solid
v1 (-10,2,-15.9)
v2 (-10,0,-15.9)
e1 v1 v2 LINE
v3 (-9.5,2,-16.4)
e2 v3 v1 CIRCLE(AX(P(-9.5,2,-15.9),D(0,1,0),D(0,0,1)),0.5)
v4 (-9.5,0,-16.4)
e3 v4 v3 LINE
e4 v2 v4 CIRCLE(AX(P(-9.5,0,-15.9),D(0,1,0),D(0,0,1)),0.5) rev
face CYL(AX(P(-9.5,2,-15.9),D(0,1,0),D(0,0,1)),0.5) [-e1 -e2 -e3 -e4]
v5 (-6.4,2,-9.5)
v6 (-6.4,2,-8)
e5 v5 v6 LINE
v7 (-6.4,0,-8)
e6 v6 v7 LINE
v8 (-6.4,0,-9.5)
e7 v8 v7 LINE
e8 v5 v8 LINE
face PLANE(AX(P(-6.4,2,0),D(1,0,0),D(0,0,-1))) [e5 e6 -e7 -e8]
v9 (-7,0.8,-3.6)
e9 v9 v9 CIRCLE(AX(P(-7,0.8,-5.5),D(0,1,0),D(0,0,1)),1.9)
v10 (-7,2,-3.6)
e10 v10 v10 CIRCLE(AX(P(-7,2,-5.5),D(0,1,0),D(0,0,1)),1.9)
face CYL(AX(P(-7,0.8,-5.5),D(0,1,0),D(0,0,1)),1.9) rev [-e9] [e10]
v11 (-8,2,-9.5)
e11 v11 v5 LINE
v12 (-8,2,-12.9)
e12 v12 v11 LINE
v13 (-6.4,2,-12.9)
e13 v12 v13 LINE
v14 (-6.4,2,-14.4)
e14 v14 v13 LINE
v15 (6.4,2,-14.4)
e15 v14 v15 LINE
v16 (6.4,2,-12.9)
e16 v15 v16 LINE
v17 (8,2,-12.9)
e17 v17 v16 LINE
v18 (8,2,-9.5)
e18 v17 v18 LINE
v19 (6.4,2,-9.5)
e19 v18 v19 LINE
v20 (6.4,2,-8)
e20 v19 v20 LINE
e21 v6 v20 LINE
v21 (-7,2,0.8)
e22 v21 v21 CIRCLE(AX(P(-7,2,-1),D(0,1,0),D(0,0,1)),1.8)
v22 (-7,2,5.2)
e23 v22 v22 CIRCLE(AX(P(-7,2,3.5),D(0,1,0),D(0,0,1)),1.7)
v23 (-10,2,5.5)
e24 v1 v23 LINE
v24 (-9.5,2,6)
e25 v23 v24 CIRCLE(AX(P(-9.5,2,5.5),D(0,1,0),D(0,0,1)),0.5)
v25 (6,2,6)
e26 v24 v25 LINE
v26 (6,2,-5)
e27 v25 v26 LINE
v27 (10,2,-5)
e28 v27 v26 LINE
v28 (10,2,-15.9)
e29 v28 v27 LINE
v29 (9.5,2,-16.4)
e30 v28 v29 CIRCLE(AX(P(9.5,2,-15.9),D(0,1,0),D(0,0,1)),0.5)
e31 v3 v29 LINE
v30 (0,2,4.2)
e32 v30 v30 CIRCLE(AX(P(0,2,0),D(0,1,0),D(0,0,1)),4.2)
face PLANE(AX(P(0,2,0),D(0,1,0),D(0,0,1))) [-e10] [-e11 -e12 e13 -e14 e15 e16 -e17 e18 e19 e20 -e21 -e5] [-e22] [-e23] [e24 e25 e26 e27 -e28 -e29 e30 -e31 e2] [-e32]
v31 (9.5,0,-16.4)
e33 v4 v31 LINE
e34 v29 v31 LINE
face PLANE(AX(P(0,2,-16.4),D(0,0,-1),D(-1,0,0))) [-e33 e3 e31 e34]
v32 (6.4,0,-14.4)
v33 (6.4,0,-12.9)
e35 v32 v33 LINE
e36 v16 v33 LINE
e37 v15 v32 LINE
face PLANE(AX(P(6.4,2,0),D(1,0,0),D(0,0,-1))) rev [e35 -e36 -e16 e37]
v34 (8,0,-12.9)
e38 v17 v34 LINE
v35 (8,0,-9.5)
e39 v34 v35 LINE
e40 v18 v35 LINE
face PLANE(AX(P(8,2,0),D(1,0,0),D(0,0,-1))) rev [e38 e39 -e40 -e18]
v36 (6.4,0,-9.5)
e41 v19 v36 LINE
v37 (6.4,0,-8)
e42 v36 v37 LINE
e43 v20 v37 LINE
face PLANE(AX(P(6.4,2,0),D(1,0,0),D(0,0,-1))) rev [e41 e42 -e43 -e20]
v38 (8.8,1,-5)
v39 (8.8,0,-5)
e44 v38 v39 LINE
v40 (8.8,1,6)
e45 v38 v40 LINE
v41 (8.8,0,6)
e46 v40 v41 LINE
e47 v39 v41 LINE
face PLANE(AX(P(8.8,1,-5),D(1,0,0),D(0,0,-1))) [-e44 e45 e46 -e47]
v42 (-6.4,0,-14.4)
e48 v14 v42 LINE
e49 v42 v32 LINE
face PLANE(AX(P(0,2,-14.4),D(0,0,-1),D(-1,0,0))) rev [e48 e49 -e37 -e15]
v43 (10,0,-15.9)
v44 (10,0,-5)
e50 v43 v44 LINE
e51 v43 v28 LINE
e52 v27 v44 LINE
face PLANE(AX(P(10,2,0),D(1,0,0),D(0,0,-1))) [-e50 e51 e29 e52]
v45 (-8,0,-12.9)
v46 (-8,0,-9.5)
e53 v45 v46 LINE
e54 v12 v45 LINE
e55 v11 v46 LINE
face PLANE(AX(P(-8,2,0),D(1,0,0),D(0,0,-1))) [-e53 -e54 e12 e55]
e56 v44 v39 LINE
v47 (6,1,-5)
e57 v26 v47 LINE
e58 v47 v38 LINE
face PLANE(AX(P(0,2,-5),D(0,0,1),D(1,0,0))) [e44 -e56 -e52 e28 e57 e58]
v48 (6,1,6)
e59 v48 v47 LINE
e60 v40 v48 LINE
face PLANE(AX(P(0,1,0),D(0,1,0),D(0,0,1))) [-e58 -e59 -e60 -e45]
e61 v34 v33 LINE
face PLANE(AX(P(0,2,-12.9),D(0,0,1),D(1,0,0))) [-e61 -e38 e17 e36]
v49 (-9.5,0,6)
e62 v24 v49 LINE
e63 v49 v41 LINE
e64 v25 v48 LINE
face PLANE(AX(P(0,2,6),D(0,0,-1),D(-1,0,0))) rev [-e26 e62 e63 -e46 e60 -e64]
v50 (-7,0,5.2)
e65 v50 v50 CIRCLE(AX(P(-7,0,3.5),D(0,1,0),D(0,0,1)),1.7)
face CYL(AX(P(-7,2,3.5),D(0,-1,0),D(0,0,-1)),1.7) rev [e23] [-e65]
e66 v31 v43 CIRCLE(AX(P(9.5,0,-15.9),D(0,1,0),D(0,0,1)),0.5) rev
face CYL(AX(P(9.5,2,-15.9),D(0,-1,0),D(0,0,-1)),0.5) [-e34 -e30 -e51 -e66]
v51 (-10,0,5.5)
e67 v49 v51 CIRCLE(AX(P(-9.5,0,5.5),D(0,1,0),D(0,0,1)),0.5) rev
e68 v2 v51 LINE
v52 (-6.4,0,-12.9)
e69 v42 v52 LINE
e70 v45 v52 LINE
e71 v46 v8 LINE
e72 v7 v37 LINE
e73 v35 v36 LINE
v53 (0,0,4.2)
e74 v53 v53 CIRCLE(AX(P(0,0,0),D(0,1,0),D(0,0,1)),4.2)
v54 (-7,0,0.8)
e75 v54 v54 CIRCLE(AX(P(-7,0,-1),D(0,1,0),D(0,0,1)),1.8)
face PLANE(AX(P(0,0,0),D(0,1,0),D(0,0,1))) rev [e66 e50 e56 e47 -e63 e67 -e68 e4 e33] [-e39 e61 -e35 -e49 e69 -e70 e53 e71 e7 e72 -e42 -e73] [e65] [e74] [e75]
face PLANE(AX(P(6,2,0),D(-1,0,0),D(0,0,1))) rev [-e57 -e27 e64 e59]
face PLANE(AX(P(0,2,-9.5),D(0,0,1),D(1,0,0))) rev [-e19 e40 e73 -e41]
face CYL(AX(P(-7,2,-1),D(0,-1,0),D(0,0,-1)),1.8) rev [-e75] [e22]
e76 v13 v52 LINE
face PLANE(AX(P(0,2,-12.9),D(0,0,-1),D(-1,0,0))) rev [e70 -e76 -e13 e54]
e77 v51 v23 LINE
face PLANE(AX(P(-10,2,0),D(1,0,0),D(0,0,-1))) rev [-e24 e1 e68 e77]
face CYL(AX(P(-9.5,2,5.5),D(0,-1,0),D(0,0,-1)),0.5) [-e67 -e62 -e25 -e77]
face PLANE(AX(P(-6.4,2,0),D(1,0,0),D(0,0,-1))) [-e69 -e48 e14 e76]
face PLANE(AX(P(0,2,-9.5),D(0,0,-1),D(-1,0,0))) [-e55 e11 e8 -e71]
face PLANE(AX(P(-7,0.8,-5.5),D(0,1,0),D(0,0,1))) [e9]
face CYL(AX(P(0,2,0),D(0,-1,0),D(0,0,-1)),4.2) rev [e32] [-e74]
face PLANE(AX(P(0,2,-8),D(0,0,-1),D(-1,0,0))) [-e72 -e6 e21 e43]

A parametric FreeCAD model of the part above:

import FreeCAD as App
import Part
import Sketcher

V = App.Vector


def edges_at(feature, points):
    """Names of the edges that pass closest to the given points."""
    edges = feature.Shape.Edges
    near = lambda p: min(range(len(edges)), key=lambda i: edges[i].distToShape(Part.Vertex(*p))[0])
    return sorted({f"Edge{near(p) + 1}" for p in points})


def add_polygon(sketch, points):
    """Adds a closed chain of lines whose ends are joined by coincident constraints."""
    first, n = sketch.GeometryCount, len(points)
    for a, b in zip(points, points[1:] + points[:1]):
        sketch.addGeometry(Part.LineSegment(App.Vector(*a, 0), App.Vector(*b, 0)), False)
    for i in range(n):
        sketch.addConstraint(Sketcher.Constraint("Coincident", first + i, 2, first + (i + 1) % n, 1))

doc = App.newDocument("Part")
body = doc.addObject("PartDesign::Body", "Body")

# Sketch on XZ plane
sketch1 = body.newObject("Sketcher::SketchObject", "Sketch")
sketch1.AttachmentSupport = (doc.getObject("XZ_Plane"), [""])
sketch1.MapMode = "FlatFace"
add_polygon(sketch1, [(10, -16.4), (-10, -16.4), (-10, 6), (6, 6), (6, -5), (10, -5)])  # lines 0-5
sketch1.addGeometry(Part.Circle(V(-7, 3.5, 0), V(0, 0, 1), 1.7), False)  # 6
sketch1.addGeometry(Part.Circle(V(-7, -1, 0), V(0, 0, 1), 1.8), False)  # 7
sketch1.addGeometry(Part.Circle(V(0, 0, 0), V(0, 0, 1), 4.2), False)  # 8
add_polygon(sketch1, [(-8, -12.9), (-6.4, -12.9), (-6.4, -14.4), (6.4, -14.4), (6.4, -12.9), (8, -12.9), (8, -9.5), (6.4, -9.5), (6.4, -8), (-6.4, -8), (-6.4, -9.5), (-8, -9.5)])  # lines 9-20
sketch1.addConstraint([
    Sketcher.Constraint("Horizontal", 0),
    Sketcher.Constraint("Vertical", 1),
    Sketcher.Constraint("Horizontal", 2),
    Sketcher.Constraint("Vertical", 3),
    Sketcher.Constraint("Horizontal", 4),
    Sketcher.Constraint("Vertical", 5),
    Sketcher.Constraint("Horizontal", 9),
    Sketcher.Constraint("Vertical", 10),
    Sketcher.Constraint("Horizontal", 11),
    Sketcher.Constraint("Vertical", 12),
    Sketcher.Constraint("Horizontal", 13),
    Sketcher.Constraint("Vertical", 14),
    Sketcher.Constraint("Horizontal", 15),
    Sketcher.Constraint("Vertical", 16),
    Sketcher.Constraint("Horizontal", 17),
    Sketcher.Constraint("Vertical", 18),
    Sketcher.Constraint("Horizontal", 19),
    Sketcher.Constraint("Vertical", 20),
    Sketcher.Constraint("Coincident", 8, 3, -1, 1),
    Sketcher.Constraint("Symmetric", 9, 2, 12, 2, -2),
    Sketcher.Constraint("Symmetric", 15, 2, 18, 2, -2),
    Sketcher.Constraint("Vertical", 6, 3, 7, 3),
    Sketcher.Constraint("Vertical", 12, 2, 15, 2),
    Sketcher.Constraint("Equal", 9, 13),
    Sketcher.Constraint("Equal", 12, 16),
    Sketcher.Constraint("Diameter", 6, 3.4),
    Sketcher.Constraint("Diameter", 7, 3.6),
    Sketcher.Constraint("Diameter", 8, 8.4),
    Sketcher.Constraint("DistanceX", 0, 2, 0, 1, 20.0),
    Sketcher.Constraint("DistanceX", 2, 1, 2, 2, 16.0),
    Sketcher.Constraint("DistanceY", 3, 2, 3, 1, 11.0),
    Sketcher.Constraint("DistanceX", 9, 1, 9, 2, 1.6),
    Sketcher.Constraint("DistanceX", 11, 1, 11, 2, 12.8),
    Sketcher.Constraint("DistanceY", 1, 1, 1, 2, 22.4),
    Sketcher.Constraint("DistanceY", 10, 2, 10, 1, 1.5),
    Sketcher.Constraint("DistanceY", 14, 1, 14, 2, 3.4),
    Sketcher.Constraint("DistanceX", 6, 3, -1, 1, 7.0),
    Sketcher.Constraint("DistanceY", 7, 3, -1, 1, 1.0),
    Sketcher.Constraint("DistanceX", 0, 2, -1, 1, 10.0),
    Sketcher.Constraint("DistanceY", -1, 1, 1, 2, 6.0),
    Sketcher.Constraint("DistanceY", 16, 2, -1, 1, 8.0),
    Sketcher.Constraint("DistanceY", -1, 1, 6, 3, 3.5),
])
pad1 = body.newObject("PartDesign::Pad", "Pad")
pad1.Profile = sketch1
pad1.Length = 2
pad1.Reversed = True

# Sketch on XZ plane
sketch2 = body.newObject("Sketcher::SketchObject", "Sketch001")
sketch2.AttachmentSupport = (doc.getObject("XZ_Plane"), [""])
sketch2.MapMode = "FlatFace"
sketch2.AttachmentOffset = App.Placement(V(0, 0, -2), App.Rotation())
sketch2.addGeometry(Part.Circle(V(-7, -5.5, 0), V(0, 0, 1), 1.9), False)
sketch2.addConstraint([
    Sketcher.Constraint("Diameter", 0, 3.8),
    Sketcher.Constraint("DistanceX", 0, 3, -1, 1, 7.0),
    Sketcher.Constraint("DistanceY", 0, 3, -1, 1, 5.5),
])
pocket1 = body.newObject("PartDesign::Pocket", "Pocket")
pocket1.Profile = sketch2
pocket1.Length = 1.2
pocket1.Reversed = True

# Sketch on XZ plane
sketch3 = body.newObject("Sketcher::SketchObject", "Sketch002")
sketch3.AttachmentSupport = (doc.getObject("XZ_Plane"), [""])
sketch3.MapMode = "FlatFace"
add_polygon(sketch3, [(6, 6), (6, -5), (8.8, -5), (8.8, 6)])  # lines 0-3
sketch3.addConstraint([
    Sketcher.Constraint("Vertical", 0),
    Sketcher.Constraint("Horizontal", 1),
    Sketcher.Constraint("Vertical", 2),
    Sketcher.Constraint("Horizontal", 3),
    Sketcher.Constraint("DistanceY", 0, 2, 0, 1, 11.0),
    Sketcher.Constraint("DistanceX", 1, 1, 1, 2, 2.8),
    Sketcher.Constraint("DistanceX", -1, 1, 0, 2, 6.0),
    Sketcher.Constraint("DistanceY", 0, 2, -1, 1, 5.0),
])
pad2 = body.newObject("PartDesign::Pad", "Pad001")
pad2.Profile = sketch3
pad2.Length = 1
pad2.Reversed = True
doc.recompute()

fillet = body.newObject("PartDesign::Fillet", "Fillet")
fillet.Base = (pad2, edges_at(pad2, [(-10, 1, 6), (-10, 1, -16.4), (10, 1, -16.4)]))
fillet.Radius = 0.5

doc.recompute()
